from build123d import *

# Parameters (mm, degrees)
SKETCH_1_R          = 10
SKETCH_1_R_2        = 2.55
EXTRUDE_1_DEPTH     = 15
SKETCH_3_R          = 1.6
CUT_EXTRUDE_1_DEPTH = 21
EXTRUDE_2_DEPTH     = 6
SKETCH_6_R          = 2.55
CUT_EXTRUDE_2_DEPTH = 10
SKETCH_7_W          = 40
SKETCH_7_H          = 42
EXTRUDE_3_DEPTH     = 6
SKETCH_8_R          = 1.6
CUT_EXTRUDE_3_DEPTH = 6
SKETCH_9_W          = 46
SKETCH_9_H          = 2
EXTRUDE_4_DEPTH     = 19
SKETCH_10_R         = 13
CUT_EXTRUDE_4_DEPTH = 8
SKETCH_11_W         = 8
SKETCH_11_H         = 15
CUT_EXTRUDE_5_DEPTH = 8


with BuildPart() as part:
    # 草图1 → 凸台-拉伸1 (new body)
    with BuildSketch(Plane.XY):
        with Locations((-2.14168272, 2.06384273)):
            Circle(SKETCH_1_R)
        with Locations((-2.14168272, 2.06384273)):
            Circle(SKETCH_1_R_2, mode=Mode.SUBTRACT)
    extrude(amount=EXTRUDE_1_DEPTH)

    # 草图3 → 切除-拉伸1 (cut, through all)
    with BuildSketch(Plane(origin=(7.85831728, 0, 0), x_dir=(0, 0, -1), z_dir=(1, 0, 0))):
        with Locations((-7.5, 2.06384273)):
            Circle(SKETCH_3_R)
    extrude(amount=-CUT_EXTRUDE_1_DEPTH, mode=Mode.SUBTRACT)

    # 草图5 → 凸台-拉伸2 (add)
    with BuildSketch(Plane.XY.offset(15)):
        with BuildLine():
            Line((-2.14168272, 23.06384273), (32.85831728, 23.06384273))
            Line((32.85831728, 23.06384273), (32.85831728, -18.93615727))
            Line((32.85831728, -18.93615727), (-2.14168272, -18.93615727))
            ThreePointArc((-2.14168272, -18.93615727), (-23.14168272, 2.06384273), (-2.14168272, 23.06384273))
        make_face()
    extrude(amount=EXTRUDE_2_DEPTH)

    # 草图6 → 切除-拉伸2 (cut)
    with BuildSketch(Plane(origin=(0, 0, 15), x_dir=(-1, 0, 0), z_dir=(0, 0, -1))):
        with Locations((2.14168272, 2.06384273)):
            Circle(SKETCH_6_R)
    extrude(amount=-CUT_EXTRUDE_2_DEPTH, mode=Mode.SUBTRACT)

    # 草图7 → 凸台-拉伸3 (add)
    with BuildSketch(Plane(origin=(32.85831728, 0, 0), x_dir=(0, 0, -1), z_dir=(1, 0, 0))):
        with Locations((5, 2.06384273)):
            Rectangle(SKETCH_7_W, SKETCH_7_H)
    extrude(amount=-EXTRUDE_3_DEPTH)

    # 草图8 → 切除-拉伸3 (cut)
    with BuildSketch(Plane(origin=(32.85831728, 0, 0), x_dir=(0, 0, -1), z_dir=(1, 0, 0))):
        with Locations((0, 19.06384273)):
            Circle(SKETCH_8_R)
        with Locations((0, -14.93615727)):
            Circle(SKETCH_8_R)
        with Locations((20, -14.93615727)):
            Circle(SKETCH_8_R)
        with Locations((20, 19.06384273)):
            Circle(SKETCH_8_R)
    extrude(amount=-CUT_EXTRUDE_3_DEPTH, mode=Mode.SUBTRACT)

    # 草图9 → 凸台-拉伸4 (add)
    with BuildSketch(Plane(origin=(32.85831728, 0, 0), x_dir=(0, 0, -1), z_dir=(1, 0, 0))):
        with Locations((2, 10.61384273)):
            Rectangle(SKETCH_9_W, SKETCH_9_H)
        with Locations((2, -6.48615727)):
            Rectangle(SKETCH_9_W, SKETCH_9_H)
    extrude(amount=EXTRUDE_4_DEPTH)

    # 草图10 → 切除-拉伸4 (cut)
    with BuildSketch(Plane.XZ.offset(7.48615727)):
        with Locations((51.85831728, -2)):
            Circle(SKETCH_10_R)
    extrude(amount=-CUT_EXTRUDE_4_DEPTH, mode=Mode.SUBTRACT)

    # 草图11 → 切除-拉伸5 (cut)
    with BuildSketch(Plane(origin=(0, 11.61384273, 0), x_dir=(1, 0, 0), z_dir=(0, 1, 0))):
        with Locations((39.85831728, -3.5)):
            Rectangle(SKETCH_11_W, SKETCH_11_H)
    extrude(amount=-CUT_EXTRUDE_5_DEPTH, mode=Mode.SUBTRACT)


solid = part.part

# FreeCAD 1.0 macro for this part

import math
import FreeCAD as App
import Part
import Sketcher
Q = App.Units.Quantity

doc = App.newDocument("Part")
params = doc.addObject("Spreadsheet::Sheet", "Params")
for row, (alias, value) in enumerate([
    ("sketch1_diameter", "20 mm"),
    ("sketch1_diameter2", "5.1 mm"),
    ("pad1_length", "15 mm"),
    ("sketch2_diameter", "3.2 mm"),
    ("sketch3_radius", "21 mm"),
    ("sketch3_width", "35 mm"),
    ("pad2_length", "6 mm"),
    ("sketch4_diameter", "5.1 mm"),
    ("pocket2_length", "10 mm"),
    ("sketch5_width", "42 mm"),
    ("sketch5_height", "40 mm"),
    ("pad3_length", "6 mm"),
    ("sketch6_diameter", "3.2 mm"),
    ("pocket3_length", "6 mm"),
    ("sketch7_width", "2 mm"),
    ("sketch7_height", "46 mm"),
    ("pad4_length", "19 mm"),
    ("sketch8_diameter", "26 mm"),
    ("pocket4_length", "8 mm"),
    ("sketch9_width", "8 mm"),
    ("sketch9_height", "15 mm"),
    ("pocket5_length", "8 mm"),
], start=1):
    params.set(f"A{row}", alias)
    params.set(f"B{row}", "=" + value)
    params.setAlias(f"B{row}", alias)

body = doc.addObject("PartDesign::Body", "Body")

sketch1 = body.newObject("Sketcher::SketchObject", "Sketch")
sketch1.AttachmentSupport = (doc.getObject("XY_Plane"), [""])
sketch1.MapMode = "FlatFace"
sketch1.addGeometry([
    Part.Circle(App.Vector(-2.1, 2.1, 0), App.Vector(0, 0, 1), 10),
    Part.Circle(App.Vector(-2.1, 2.1, 0), App.Vector(0, 0, 1), 2.5),
], False)
sketch1.addConstraint([
    Sketcher.Constraint("Coincident", 1, 3, 0, 3),
    Sketcher.Constraint("Diameter", 0, Q("20 mm")),
    Sketcher.Constraint("Diameter", 1, Q("5.1 mm")),
    Sketcher.Constraint("DistanceX", 0, 3, -1, 1, Q("2.141683 mm")),
    Sketcher.Constraint("DistanceY", -1, 1, 0, 3, Q("2.063843 mm")),
])
sketch1.setExpression("Constraints[1]", "Params.sketch1_diameter")
sketch1.setExpression("Constraints[2]", "Params.sketch1_diameter2")
pad1 = body.newObject("PartDesign::Pad", "Pad")
pad1.Profile = sketch1
pad1.setExpression("Length", "Params.pad1_length")

sketch2 = body.newObject("Sketcher::SketchObject", "Sketch001")
sketch2.AttachmentSupport = (doc.getObject("YZ_Plane"), [""])
sketch2.MapMode = "FlatFace"
sketch2.AttachmentOffset = App.Placement(App.Vector(0, 0, 7.858317), App.Rotation())
sketch2.addGeometry(Part.Circle(App.Vector(2.1, 7.5, 0), App.Vector(0, 0, 1), 1.6), False)
sketch2.addConstraint([
    Sketcher.Constraint("Diameter", 0, Q("3.2 mm")),
    Sketcher.Constraint("DistanceY", -1, 1, 0, 3, Q("7.5 mm")),
    Sketcher.Constraint("DistanceX", -1, 1, 0, 3, Q("2.063843 mm")),
])
sketch2.setExpression("Constraints[0]", "Params.sketch2_diameter")
pocket1 = body.newObject("PartDesign::Pocket", "Pocket")
pocket1.Profile = sketch2
pocket1.Type = "ThroughAll"

sketch3 = body.newObject("Sketcher::SketchObject", "Sketch002")
sketch3.AttachmentSupport = (doc.getObject("XY_Plane"), [""])
sketch3.MapMode = "FlatFace"
sketch3.AttachmentOffset = App.Placement(App.Vector(0, 0, 15), App.Rotation())
sketch3.addGeometry([
    Part.LineSegment(App.Vector(33, 23, 0), App.Vector(-2, 23, 0)),
    Part.ArcOfCircle(Part.Circle(App.Vector(-2, 2, 0), App.Vector(0, 0, 1), 21), math.radians(90), math.radians(270)),
    Part.LineSegment(App.Vector(-2, -19, 0), App.Vector(33, -19, 0)),
    Part.LineSegment(App.Vector(33, -19, 0), App.Vector(33, 23, 0)),
], False)
sketch3.addConstraint([
    Sketcher.Constraint("Tangent", 0, 2, 1, 1),
    Sketcher.Constraint("Tangent", 1, 2, 2, 1),
    Sketcher.Constraint("Coincident", 2, 2, 3, 1),
    Sketcher.Constraint("Coincident", 3, 2, 0, 1),
    Sketcher.Constraint("Horizontal", 0),
    Sketcher.Constraint("Horizontal", 2),
    Sketcher.Constraint("Vertical", 3),
    Sketcher.Constraint("Radius", 1, Q("21 mm")),
    Sketcher.Constraint("DistanceX", 0, 2, 0, 1, Q("35 mm")),
    Sketcher.Constraint("DistanceX", 1, 3, -1, 1, Q("2.141683 mm")),
    Sketcher.Constraint("DistanceY", -1, 1, 1, 3, Q("2.063843 mm")),
])
sketch3.setExpression("Constraints[7]", "Params.sketch3_radius")
sketch3.setExpression("Constraints[8]", "Params.sketch3_width")
pad2 = body.newObject("PartDesign::Pad", "Pad001")
pad2.Profile = sketch3
pad2.setExpression("Length", "Params.pad2_length")

sketch4 = body.newObject("Sketcher::SketchObject", "Sketch003")
sketch4.AttachmentSupport = (doc.getObject("XY_Plane"), [""])
sketch4.MapMode = "FlatFace"
sketch4.AttachmentOffset = App.Placement(App.Vector(0, 0, 15), App.Rotation())
sketch4.addGeometry(Part.Circle(App.Vector(-2.1, 2.1, 0), App.Vector(0, 0, 1), 2.5), False)
sketch4.addConstraint([
    Sketcher.Constraint("Diameter", 0, Q("5.1 mm")),
    Sketcher.Constraint("DistanceX", 0, 3, -1, 1, Q("2.141683 mm")),
    Sketcher.Constraint("DistanceY", -1, 1, 0, 3, Q("2.063843 mm")),
])
sketch4.setExpression("Constraints[0]", "Params.sketch4_diameter")
pocket2 = body.newObject("PartDesign::Pocket", "Pocket001")
pocket2.Profile = sketch4
pocket2.setExpression("Length", "Params.pocket2_length")
pocket2.Reversed = True

sketch5 = body.newObject("Sketcher::SketchObject", "Sketch004")
sketch5.AttachmentSupport = (doc.getObject("YZ_Plane"), [""])
sketch5.MapMode = "FlatFace"
sketch5.AttachmentOffset = App.Placement(App.Vector(0, 0, 32.858317), App.Rotation())
sketch5.addGeometry([
    Part.LineSegment(App.Vector(23, 15, 0), App.Vector(-19, 15, 0)),
    Part.LineSegment(App.Vector(-19, 15, 0), App.Vector(-19, -25, 0)),
    Part.LineSegment(App.Vector(-19, -25, 0), App.Vector(23, -25, 0)),
    Part.LineSegment(App.Vector(23, -25, 0), App.Vector(23, 15, 0)),
], False)
sketch5.addConstraint([
    Sketcher.Constraint("Coincident", 0, 2, 1, 1),
    Sketcher.Constraint("Coincident", 1, 2, 2, 1),
    Sketcher.Constraint("Coincident", 2, 2, 3, 1),
    Sketcher.Constraint("Coincident", 3, 2, 0, 1),
    Sketcher.Constraint("Horizontal", 0),
    Sketcher.Constraint("Vertical", 1),
    Sketcher.Constraint("Horizontal", 2),
    Sketcher.Constraint("Vertical", 3),
    Sketcher.Constraint("DistanceX", 0, 2, 0, 1, Q("42 mm")),
    Sketcher.Constraint("DistanceY", 1, 2, 1, 1, Q("40 mm")),
    Sketcher.Constraint("DistanceY", -1, 1, 0, 2, Q("15 mm")),
    Sketcher.Constraint("DistanceX", 0, 2, -1, 1, Q("18.936157 mm")),
])
sketch5.setExpression("Constraints[8]", "Params.sketch5_width")
sketch5.setExpression("Constraints[9]", "Params.sketch5_height")
pad3 = body.newObject("PartDesign::Pad", "Pad002")
pad3.Profile = sketch5
pad3.setExpression("Length", "Params.pad3_length")
pad3.Reversed = True

sketch6 = body.newObject("Sketcher::SketchObject", "Sketch005")
sketch6.AttachmentSupport = (doc.getObject("YZ_Plane"), [""])
sketch6.MapMode = "FlatFace"
sketch6.AttachmentOffset = App.Placement(App.Vector(0, 0, 32.858317), App.Rotation())
sketch6.addGeometry([
    Part.Circle(App.Vector(19.1, 0, 0), App.Vector(0, 0, 1), 1.6),
    Part.Circle(App.Vector(-14.9, 0, 0), App.Vector(0, 0, 1), 1.6),
    Part.Circle(App.Vector(-14.9, -20, 0), App.Vector(0, 0, 1), 1.6),
    Part.Circle(App.Vector(19.1, -20, 0), App.Vector(0, 0, 1), 1.6),
], False)
sketch6.addConstraint([
    Sketcher.Constraint("Equal", 0, 1),
    Sketcher.Constraint("Equal", 1, 2),
    Sketcher.Constraint("Equal", 2, 3),
    Sketcher.Constraint("PointOnObject", 0, 3, -1),
    Sketcher.Constraint("PointOnObject", 1, 3, -1),
    Sketcher.Constraint("Horizontal", 2, 3, 3, 3),
    Sketcher.Constraint("Vertical", 1, 3, 2, 3),
    Sketcher.Constraint("Vertical", 0, 3, 3, 3),
    Sketcher.Constraint("Diameter", 0, Q("3.2 mm")),
    Sketcher.Constraint("DistanceY", 2, 3, -1, 1, Q("20 mm")),
    Sketcher.Constraint("DistanceX", 1, 3, 0, 3, Q("34 mm")),
    Sketcher.Constraint("DistanceX", -1, 1, 0, 3, Q("19.063843 mm")),
])
sketch6.setExpression("Constraints[8]", "Params.sketch6_diameter")
pocket3 = body.newObject("PartDesign::Pocket", "Pocket002")
pocket3.Profile = sketch6
pocket3.setExpression("Length", "Params.pocket3_length")

sketch7 = body.newObject("Sketcher::SketchObject", "Sketch006")
sketch7.AttachmentSupport = (doc.getObject("YZ_Plane"), [""])
sketch7.MapMode = "FlatFace"
sketch7.AttachmentOffset = App.Placement(App.Vector(0, 0, 32.858317), App.Rotation())
sketch7.addGeometry([
    Part.LineSegment(App.Vector(11.6, 21, 0), App.Vector(9.6, 21, 0)),
    Part.LineSegment(App.Vector(9.6, 21, 0), App.Vector(9.6, -25, 0)),
    Part.LineSegment(App.Vector(9.6, -25, 0), App.Vector(11.6, -25, 0)),
    Part.LineSegment(App.Vector(11.6, -25, 0), App.Vector(11.6, 21, 0)),
    Part.LineSegment(App.Vector(-5.5, 21, 0), App.Vector(-7.5, 21, 0)),
    Part.LineSegment(App.Vector(-7.5, 21, 0), App.Vector(-7.5, -25, 0)),
    Part.LineSegment(App.Vector(-7.5, -25, 0), App.Vector(-5.5, -25, 0)),
    Part.LineSegment(App.Vector(-5.5, -25, 0), App.Vector(-5.5, 21, 0)),
], False)
sketch7.addConstraint([
    Sketcher.Constraint("Coincident", 0, 2, 1, 1),
    Sketcher.Constraint("Coincident", 1, 2, 2, 1),
    Sketcher.Constraint("Coincident", 2, 2, 3, 1),
    Sketcher.Constraint("Coincident", 3, 2, 0, 1),
    Sketcher.Constraint("Coincident", 4, 2, 5, 1),
    Sketcher.Constraint("Coincident", 5, 2, 6, 1),
    Sketcher.Constraint("Coincident", 6, 2, 7, 1),
    Sketcher.Constraint("Coincident", 7, 2, 4, 1),
    Sketcher.Constraint("Horizontal", 0),
    Sketcher.Constraint("Vertical", 1),
    Sketcher.Constraint("Horizontal", 2),
    Sketcher.Constraint("Vertical", 3),
    Sketcher.Constraint("Horizontal", 4),
    Sketcher.Constraint("Vertical", 5),
    Sketcher.Constraint("Horizontal", 6),
    Sketcher.Constraint("Vertical", 7),
    Sketcher.Constraint("Horizontal", 3, 2, 4, 2),
    Sketcher.Constraint("Horizontal", 2, 2, 5, 2),
    Sketcher.Constraint("Equal", 2, 4),
    Sketcher.Constraint("DistanceX", 0, 2, 0, 1, Q("2 mm")),
    Sketcher.Constraint("DistanceY", 1, 2, 1, 1, Q("46 mm")),
    Sketcher.Constraint("DistanceY", -1, 1, 0, 2, Q("21 mm")),
    Sketcher.Constraint("DistanceX", 4, 2, 0, 2, Q("17.1 mm")),
    Sketcher.Constraint("DistanceX", -1, 1, 0, 2, Q("9.613843 mm")),
])
sketch7.setExpression("Constraints[19]", "Params.sketch7_width")
sketch7.setExpression("Constraints[20]", "Params.sketch7_height")
pad4 = body.newObject("PartDesign::Pad", "Pad003")
pad4.Profile = sketch7
pad4.setExpression("Length", "Params.pad4_length")

sketch8 = body.newObject("Sketcher::SketchObject", "Sketch007")
sketch8.AttachmentSupport = (doc.getObject("XZ_Plane"), [""])
sketch8.MapMode = "FlatFace"
sketch8.AttachmentOffset = App.Placement(App.Vector(0, 0, 7.486157), App.Rotation())
sketch8.addGeometry(Part.Circle(App.Vector(52, -2, 0), App.Vector(0, 0, 1), 13), False)
sketch8.addConstraint([
    Sketcher.Constraint("Diameter", 0, Q("26 mm")),
    Sketcher.Constraint("DistanceY", 0, 3, -1, 1, Q("2 mm")),
    Sketcher.Constraint("DistanceX", -1, 1, 0, 3, Q("51.858317 mm")),
])
sketch8.setExpression("Constraints[0]", "Params.sketch8_diameter")
pocket4 = body.newObject("PartDesign::Pocket", "Pocket003")
pocket4.Profile = sketch8
pocket4.setExpression("Length", "Params.pocket4_length")

sketch9 = body.newObject("Sketcher::SketchObject", "Sketch008")
sketch9.AttachmentSupport = (doc.getObject("XZ_Plane"), [""])
sketch9.MapMode = "FlatFace"
sketch9.AttachmentOffset = App.Placement(App.Vector(0, 0, -11.613843), App.Rotation())
sketch9.addGeometry([
    Part.LineSegment(App.Vector(36, -4, 0), App.Vector(36, 11, 0)),
    Part.LineSegment(App.Vector(36, 11, 0), App.Vector(44, 11, 0)),
    Part.LineSegment(App.Vector(44, 11, 0), App.Vector(44, -4, 0)),
    Part.LineSegment(App.Vector(44, -4, 0), App.Vector(36, -4, 0)),
], False)
sketch9.addConstraint([
    Sketcher.Constraint("Coincident", 0, 2, 1, 1),
    Sketcher.Constraint("Coincident", 1, 2, 2, 1),
    Sketcher.Constraint("Coincident", 2, 2, 3, 1),
    Sketcher.Constraint("Coincident", 3, 2, 0, 1),
    Sketcher.Constraint("Vertical", 0),
    Sketcher.Constraint("Horizontal", 1),
    Sketcher.Constraint("Vertical", 2),
    Sketcher.Constraint("Horizontal", 3),
    Sketcher.Constraint("DistanceX", 1, 1, 1, 2, Q("8 mm")),
    Sketcher.Constraint("DistanceY", 0, 1, 0, 2, Q("15 mm")),
    Sketcher.Constraint("DistanceY", -1, 1, 0, 2, Q("11 mm")),
    Sketcher.Constraint("DistanceX", -1, 1, 0, 2, Q("35.858317 mm")),
])
sketch9.setExpression("Constraints[8]", "Params.sketch9_width")
sketch9.setExpression("Constraints[9]", "Params.sketch9_height")
pocket5 = body.newObject("PartDesign::Pocket", "Pocket004")
pocket5.Profile = sketch9
pocket5.setExpression("Length", "Params.pocket5_length")
pocket5.Reversed = True

doc.recompute()
